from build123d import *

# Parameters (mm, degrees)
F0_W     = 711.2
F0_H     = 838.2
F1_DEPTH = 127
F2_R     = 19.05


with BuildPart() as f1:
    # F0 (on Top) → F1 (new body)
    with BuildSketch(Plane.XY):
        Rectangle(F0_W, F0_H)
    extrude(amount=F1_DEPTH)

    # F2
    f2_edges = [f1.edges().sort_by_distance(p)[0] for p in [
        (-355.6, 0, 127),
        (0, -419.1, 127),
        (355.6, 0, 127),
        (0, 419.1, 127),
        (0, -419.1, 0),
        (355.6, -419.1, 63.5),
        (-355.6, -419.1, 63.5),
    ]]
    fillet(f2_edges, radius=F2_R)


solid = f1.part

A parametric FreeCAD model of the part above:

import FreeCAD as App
import Part
import Sketcher

V = App.Vector
Q = App.Units.Quantity


def edges_at(feature, points):
    """Names of the edges that pass closest to the given points."""
    edges = feature.Shape.Edges
    near = lambda p: min(range(len(edges)), key=lambda i: edges[i].distToShape(Part.Vertex(*p))[0])
    return sorted({f"Edge{near(p) + 1}" for p in points})

doc = App.newDocument("Part")
body = doc.addObject("PartDesign::Body", "Body")

# Sketch on XY plane
sketch1 = body.newObject("Sketcher::SketchObject", "Sketch")
sketch1.AttachmentSupport = (doc.getObject("XY_Plane"), [""])
sketch1.MapMode = "FlatFace"
sketch1.addGeometry([
    Part.LineSegment(V(-355.6, 419.1, 0), V(-355.6, -419.1, 0)),
    Part.LineSegment(V(-355.6, -419.1, 0), V(355.6, -419.1, 0)),
    Part.LineSegment(V(355.6, -419.1, 0), V(355.6, 419.1, 0)),
    Part.LineSegment(V(355.6, 419.1, 0), V(-355.6, 419.1, 0)),
], False)
sketch1.addConstraint([
    Sketcher.Constraint("Coincident", 0, 2, 1, 1),
    Sketcher.Constraint("Coincident", 1, 2, 2, 1),
    Sketcher.Constraint("Coincident", 2, 2, 3, 1),
    Sketcher.Constraint("Coincident", 3, 2, 0, 1),
    Sketcher.Constraint("Vertical", 0),
    Sketcher.Constraint("Horizontal", 1),
    Sketcher.Constraint("Vertical", 2),
    Sketcher.Constraint("Horizontal", 3),
    Sketcher.Constraint("Symmetric", 0, 2, 2, 2, -1, 1),
    Sketcher.Constraint("DistanceX", 1, 1, 1, 2, Q("28 in")),
    Sketcher.Constraint("DistanceY", 0, 2, 0, 1, Q("33 in")),
])
pad1 = body.newObject("PartDesign::Pad", "Pad")
pad1.Profile = sketch1
pad1.Length = Q("5 in")
doc.recompute()

fillet = body.newObject("PartDesign::Fillet", "Fillet")
fillet.Base = (pad1, edges_at(pad1, [
    (-355.6, 0, 127),
    (0, -419.1, 127),
    (355.6, 0, 127),
    (0, 419.1, 127),
    (0, -419.1, 0),
    (355.6, -419.1, 63.5),
    (-355.6, -419.1, 63.5),
]))
fillet.Radius = Q("0.75 in")

doc.recompute()
